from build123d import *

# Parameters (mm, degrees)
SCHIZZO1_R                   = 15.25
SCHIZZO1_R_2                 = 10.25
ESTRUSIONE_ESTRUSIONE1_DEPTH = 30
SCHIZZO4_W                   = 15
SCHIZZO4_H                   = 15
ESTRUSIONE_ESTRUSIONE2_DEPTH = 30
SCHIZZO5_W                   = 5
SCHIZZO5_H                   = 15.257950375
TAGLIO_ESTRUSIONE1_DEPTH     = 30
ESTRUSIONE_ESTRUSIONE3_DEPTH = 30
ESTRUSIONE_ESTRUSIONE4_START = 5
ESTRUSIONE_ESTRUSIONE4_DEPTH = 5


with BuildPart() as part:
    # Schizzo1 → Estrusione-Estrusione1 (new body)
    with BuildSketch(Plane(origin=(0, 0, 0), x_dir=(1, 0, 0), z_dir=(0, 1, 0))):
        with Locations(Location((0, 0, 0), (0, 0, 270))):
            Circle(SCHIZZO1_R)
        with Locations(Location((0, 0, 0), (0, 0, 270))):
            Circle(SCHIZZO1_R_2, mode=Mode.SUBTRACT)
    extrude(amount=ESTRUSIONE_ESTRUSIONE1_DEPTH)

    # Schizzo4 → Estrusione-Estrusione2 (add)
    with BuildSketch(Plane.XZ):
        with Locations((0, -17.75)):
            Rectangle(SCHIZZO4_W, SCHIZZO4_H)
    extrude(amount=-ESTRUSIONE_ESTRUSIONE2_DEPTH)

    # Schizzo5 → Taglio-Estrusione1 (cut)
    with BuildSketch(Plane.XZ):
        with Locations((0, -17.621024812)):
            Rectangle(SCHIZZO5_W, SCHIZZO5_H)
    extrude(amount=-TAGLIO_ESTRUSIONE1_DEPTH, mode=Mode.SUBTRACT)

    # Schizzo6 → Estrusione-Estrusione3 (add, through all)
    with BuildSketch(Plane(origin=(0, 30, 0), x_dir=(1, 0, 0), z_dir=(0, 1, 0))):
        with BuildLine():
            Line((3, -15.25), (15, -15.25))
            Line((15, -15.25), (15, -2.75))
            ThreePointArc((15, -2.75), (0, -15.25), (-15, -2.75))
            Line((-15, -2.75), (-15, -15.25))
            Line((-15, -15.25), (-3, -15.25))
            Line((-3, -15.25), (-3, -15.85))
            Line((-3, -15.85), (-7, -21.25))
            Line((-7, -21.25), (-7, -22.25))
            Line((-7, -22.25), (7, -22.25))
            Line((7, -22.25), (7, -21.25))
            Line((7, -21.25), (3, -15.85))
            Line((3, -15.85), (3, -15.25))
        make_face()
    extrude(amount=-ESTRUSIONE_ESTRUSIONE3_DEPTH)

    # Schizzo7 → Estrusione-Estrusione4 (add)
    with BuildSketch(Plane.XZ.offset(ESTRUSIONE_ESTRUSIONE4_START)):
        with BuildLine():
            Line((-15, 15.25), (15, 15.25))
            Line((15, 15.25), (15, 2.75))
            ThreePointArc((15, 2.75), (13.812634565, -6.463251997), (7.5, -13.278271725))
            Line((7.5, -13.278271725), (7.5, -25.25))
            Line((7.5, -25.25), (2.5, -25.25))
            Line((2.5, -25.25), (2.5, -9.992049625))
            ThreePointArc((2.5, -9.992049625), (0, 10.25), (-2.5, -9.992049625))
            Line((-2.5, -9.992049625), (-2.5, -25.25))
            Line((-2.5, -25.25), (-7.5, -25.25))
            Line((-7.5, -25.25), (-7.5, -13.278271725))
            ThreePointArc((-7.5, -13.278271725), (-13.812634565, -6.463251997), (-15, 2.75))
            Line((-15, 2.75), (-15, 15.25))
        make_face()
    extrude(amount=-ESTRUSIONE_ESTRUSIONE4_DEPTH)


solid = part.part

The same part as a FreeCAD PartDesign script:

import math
import FreeCAD as App
import Part
import Sketcher
from FreeCAD import Vector
Q = App.Units.Quantity


def add_polygon(sketch, points):
    """Adds a closed chain of lines whose ends are joined by coincident constraints."""
    first, n = sketch.GeometryCount, len(points)
    for a, b in zip(points, points[1:] + points[:1]):
        sketch.addGeometry(Part.LineSegment(App.Vector(*a, 0), App.Vector(*b, 0)), False)
    for i in range(n):
        sketch.addConstraint(Sketcher.Constraint("Coincident", first + i, 2, first + (i + 1) % n, 1))

doc = App.newDocument("Part")
body = doc.addObject("PartDesign::Body", "Body")

# Sketch on XZ plane
sketch1 = body.newObject("Sketcher::SketchObject", "Sketch")
sketch1.AttachmentSupport = (doc.getObject("XZ_Plane"), [""])
sketch1.MapMode = "FlatFace"
sketch1.addGeometry(Part.Circle(Vector(0, 0, 0), Vector(0, 0, 1), 15.25), False)
sketch1.addGeometry(Part.Circle(Vector(0, 0, 0), Vector(0, 0, 1), 10.25), False)
sketch1.addConstraint(Sketcher.Constraint("Coincident", 0, 3, -1, 1))
sketch1.addConstraint(Sketcher.Constraint("Coincident", 1, 3, -1, 1))
sketch1.addConstraint(Sketcher.Constraint("Diameter", 0, Q("30.5 mm")))
sketch1.addConstraint(Sketcher.Constraint("Diameter", 1, Q("20.5 mm")))
pad1 = body.newObject("PartDesign::Pad", "Pad")
pad1.Profile = sketch1
pad1.Length = 30
pad1.Reversed = True

# Sketch on XZ plane
sketch2 = body.newObject("Sketcher::SketchObject", "Sketch001")
sketch2.AttachmentSupport = (doc.getObject("XZ_Plane"), [""])
sketch2.MapMode = "FlatFace"
add_polygon(sketch2, [(-7.5, -10.25), (-7.5, -25.25), (7.5, -25.25), (7.5, -10.25)])  # lines 0-3
sketch2.addConstraint(Sketcher.Constraint("Vertical", 0))
sketch2.addConstraint(Sketcher.Constraint("Horizontal", 1))
sketch2.addConstraint(Sketcher.Constraint("Vertical", 2))
sketch2.addConstraint(Sketcher.Constraint("Horizontal", 3))
sketch2.addConstraint(Sketcher.Constraint("Equal", 3, 0))
sketch2.addConstraint(Sketcher.Constraint("DistanceX", 1, 1, 1, 2, Q("15 mm")))
sketch2.addConstraint(Sketcher.Constraint("DistanceX", 0, 2, -1, 1, Q("7.5 mm")))
sketch2.addConstraint(Sketcher.Constraint("DistanceY", 0, 2, -1, 1, Q("25.25 mm")))
pad2 = body.newObject("PartDesign::Pad", "Pad001")
pad2.Profile = sketch2
pad2.Length = 30
pad2.Reversed = True

# Sketch on XZ plane
sketch3 = body.newObject("Sketcher::SketchObject", "Sketch002")
sketch3.AttachmentSupport = (doc.getObject("XZ_Plane"), [""])
sketch3.MapMode = "FlatFace"
add_polygon(sketch3, [(-2.5, -9.99205), (-2.5, -25.25), (2.5, -25.25), (2.5, -9.99205)])  # lines 0-3
sketch3.addConstraint(Sketcher.Constraint("Vertical", 0))
sketch3.addConstraint(Sketcher.Constraint("Horizontal", 1))
sketch3.addConstraint(Sketcher.Constraint("Vertical", 2))
sketch3.addConstraint(Sketcher.Constraint("Horizontal", 3))
sketch3.addConstraint(Sketcher.Constraint("DistanceX", 1, 1, 1, 2, Q("5 mm")))
sketch3.addConstraint(Sketcher.Constraint("DistanceX", 0, 2, -1, 1, Q("2.5 mm")))
sketch3.addConstraint(Sketcher.Constraint("DistanceY", 0, 2, -1, 1, Q("25.25 mm")))
sketch3.addConstraint(Sketcher.Constraint("DistanceY", 0, 2, 0, 1, Q("15.25795 mm")))
pocket1 = body.newObject("PartDesign::Pocket", "Pocket")
pocket1.Profile = sketch3
pocket1.Length = 30

# Sketch on XZ plane
sketch4 = body.newObject("Sketcher::SketchObject", "Sketch003")
sketch4.AttachmentSupport = (doc.getObject("XZ_Plane"), [""])
sketch4.MapMode = "FlatFace"
sketch4.AttachmentOffset = App.Placement(Vector(0, 0, -30), App.Rotation())
sketch4.addGeometry(Part.LineSegment(Vector(3, 15.25, 0), Vector(15, 15.25, 0)), False)
sketch4.addGeometry(Part.LineSegment(Vector(15, 15.25, 0), Vector(15, 2.75, 0)), False)
sketch4.addGeometry(Part.ArcOfCircle(Part.Circle(Vector(0, 0, 0), Vector(0, 0, 1), 15.25), math.radians(10.388858), math.radians(169.611142)), False)
sketch4.addGeometry(Part.LineSegment(Vector(-15, 2.75, 0), Vector(-15, 15.25, 0)), False)
sketch4.addGeometry(Part.LineSegment(Vector(-15, 15.25, 0), Vector(-3, 15.25, 0)), False)
sketch4.addGeometry(Part.LineSegment(Vector(-3, 15.25, 0), Vector(-3, 15.85, 0)), False)
sketch4.addGeometry(Part.LineSegment(Vector(-3, 15.85, 0), Vector(-7, 21.25, 0)), False)
sketch4.addGeometry(Part.LineSegment(Vector(-7, 21.25, 0), Vector(-7, 22.25, 0)), False)
sketch4.addGeometry(Part.LineSegment(Vector(-7, 22.25, 0), Vector(7, 22.25, 0)), False)
sketch4.addGeometry(Part.LineSegment(Vector(7, 22.25, 0), Vector(7, 21.25, 0)), False)
sketch4.addGeometry(Part.LineSegment(Vector(7, 21.25, 0), Vector(3, 15.85, 0)), False)
sketch4.addGeometry(Part.LineSegment(Vector(3, 15.85, 0), Vector(3, 15.25, 0)), False)
sketch4.addConstraint(Sketcher.Constraint("Coincident", 0, 2, 1, 1))
sketch4.addConstraint(Sketcher.Constraint("Coincident", 1, 2, 2, 1))
sketch4.addConstraint(Sketcher.Constraint("Coincident", 2, 2, 3, 1))
sketch4.addConstraint(Sketcher.Constraint("Coincident", 3, 2, 4, 1))
sketch4.addConstraint(Sketcher.Constraint("Coincident", 4, 2, 5, 1))
sketch4.addConstraint(Sketcher.Constraint("Coincident", 5, 2, 6, 1))
sketch4.addConstraint(Sketcher.Constraint("Coincident", 6, 2, 7, 1))
sketch4.addConstraint(Sketcher.Constraint("Coincident", 7, 2, 8, 1))
sketch4.addConstraint(Sketcher.Constraint("Coincident", 8, 2, 9, 1))
sketch4.addConstraint(Sketcher.Constraint("Coincident", 9, 2, 10, 1))
sketch4.addConstraint(Sketcher.Constraint("Coincident", 10, 2, 11, 1))
sketch4.addConstraint(Sketcher.Constraint("Coincident", 11, 2, 0, 1))
sketch4.addConstraint(Sketcher.Constraint("Horizontal", 0))
sketch4.addConstraint(Sketcher.Constraint("Vertical", 1))
sketch4.addConstraint(Sketcher.Constraint("Vertical", 3))
sketch4.addConstraint(Sketcher.Constraint("Horizontal", 4))
sketch4.addConstraint(Sketcher.Constraint("Vertical", 5))
sketch4.addConstraint(Sketcher.Constraint("Vertical", 7))
sketch4.addConstraint(Sketcher.Constraint("Horizontal", 8))
sketch4.addConstraint(Sketcher.Constraint("Vertical", 9))
sketch4.addConstraint(Sketcher.Constraint("Vertical", 11))
sketch4.addConstraint(Sketcher.Constraint("Coincident", 2, 3, -1, 1))
sketch4.addConstraint(Sketcher.Constraint("Symmetric", 0, 2, 3, 2, -2))
sketch4.addConstraint(Sketcher.Constraint("Symmetric", 6, 2, 9, 2, -2))
sketch4.addConstraint(Sketcher.Constraint("Symmetric", 5, 2, 10, 2, -2))
sketch4.addConstraint(Sketcher.Constraint("DistanceX", 0, 1, 0, 2, Q("12 mm")))
sketch4.addConstraint(Sketcher.Constraint("DistanceX", 8, 1, 8, 2, Q("14 mm")))
sketch4.addConstraint(Sketcher.Constraint("DistanceY", 7, 1, 7, 2, Q("1 mm")))
sketch4.addConstraint(Sketcher.Constraint("Radius", 2, Q("15.25 mm")))
sketch4.addConstraint(Sketcher.Constraint("DistanceY", 1, 2, 1, 1, Q("12.5 mm")))
sketch4.addConstraint(Sketcher.Constraint("DistanceY", 5, 1, 5, 2, Q("0.6 mm")))
sketch4.addConstraint(Sketcher.Constraint("DistanceX", -1, 1, 0, 2, Q("15 mm")))
sketch4.addConstraint(Sketcher.Constraint("DistanceY", 4, 2, 6, 2, Q("6 mm")))
pad3 = body.newObject("PartDesign::Pad", "Pad002")
pad3.Profile = sketch4
pad3.Type = "UpToLast"

# Sketch on XZ plane
sketch5 = body.newObject("Sketcher::SketchObject", "Sketch004")
sketch5.AttachmentSupport = (doc.getObject("XZ_Plane"), [""])
sketch5.MapMode = "FlatFace"
sketch5.AttachmentOffset = App.Placement(Vector(0, 0, 5), App.Rotation())
sketch5.addGeometry(Part.LineSegment(Vector(15, 15.25, 0), Vector(-15, 15.25, 0)), False)
sketch5.addGeometry(Part.LineSegment(Vector(-15, 15.25, 0), Vector(-15, 2.75, 0)), False)
sketch5.addGeometry(Part.ArcOfCircle(Part.Circle(Vector(0, 0, 0), Vector(0, 0, 1), 15.25), math.radians(169.611142), math.radians(240.540825)), False)
sketch5.addGeometry(Part.LineSegment(Vector(-7.5, -13.278272, 0), Vector(-7.5, -25.25, 0)), False)
sketch5.addGeometry(Part.LineSegment(Vector(-7.5, -25.25, 0), Vector(-2.5, -25.25, 0)), False)
sketch5.addGeometry(Part.LineSegment(Vector(-2.5, -25.25, 0), Vector(-2.5, -9.99205, 0)), False)
sketch5.addGeometry(Part.ArcOfCircle(Part.Circle(Vector(0, -0.025406, 0), Vector(0, 0, 1), 10.275406), math.radians(-75.918645), math.radians(255.918645)), False)
sketch5.addGeometry(Part.LineSegment(Vector(2.5, -9.99205, 0), Vector(2.5, -25.25, 0)), False)
sketch5.addGeometry(Part.LineSegment(Vector(2.5, -25.25, 0), Vector(7.5, -25.25, 0)), False)
sketch5.addGeometry(Part.LineSegment(Vector(7.5, -25.25, 0), Vector(7.5, -13.278272, 0)), False)
sketch5.addGeometry(Part.ArcOfCircle(Part.Circle(Vector(0, 0, 0), Vector(0, 0, 1), 15.25), math.radians(-60.540825), math.radians(10.388858)), False)
sketch5.addGeometry(Part.LineSegment(Vector(15, 2.75, 0), Vector(15, 15.25, 0)), False)
sketch5.addConstraint(Sketcher.Constraint("Coincident", 0, 2, 1, 1))
sketch5.addConstraint(Sketcher.Constraint("Coincident", 1, 2, 2, 1))
sketch5.addConstraint(Sketcher.Constraint("Coincident", 2, 2, 3, 1))
sketch5.addConstraint(Sketcher.Constraint("Coincident", 3, 2, 4, 1))
sketch5.addConstraint(Sketcher.Constraint("Coincident", 4, 2, 5, 1))
sketch5.addConstraint(Sketcher.Constraint("Coincident", 5, 2, 6, 2))
sketch5.addConstraint(Sketcher.Constraint("Coincident", 6, 1, 7, 1))
sketch5.addConstraint(Sketcher.Constraint("Coincident", 7, 2, 8, 1))
sketch5.addConstraint(Sketcher.Constraint("Coincident", 8, 2, 9, 1))
sketch5.addConstraint(Sketcher.Constraint("Coincident", 9, 2, 10, 1))
sketch5.addConstraint(Sketcher.Constraint("Coincident", 10, 2, 11, 1))
sketch5.addConstraint(Sketcher.Constraint("Coincident", 11, 2, 0, 1))
sketch5.addConstraint(Sketcher.Constraint("Horizontal", 0))
sketch5.addConstraint(Sketcher.Constraint("Vertical", 1))
sketch5.addConstraint(Sketcher.Constraint("Vertical", 3))
sketch5.addConstraint(Sketcher.Constraint("Horizontal", 4))
sketch5.addConstraint(Sketcher.Constraint("Vertical", 5))
sketch5.addConstraint(Sketcher.Constraint("Vertical", 7))
sketch5.addConstraint(Sketcher.Constraint("Horizontal", 8))
sketch5.addConstraint(Sketcher.Constraint("Vertical", 9))
sketch5.addConstraint(Sketcher.Constraint("Vertical", 11))
sketch5.addConstraint(Sketcher.Constraint("Coincident", 2, 3, -1, 1))
sketch5.addConstraint(Sketcher.Constraint("Coincident", 10, 3, -1, 1))
sketch5.addConstraint(Sketcher.Constraint("Equal", 2, 10))
sketch5.addConstraint(Sketcher.Constraint("Symmetric", 5, 2, 6, 1, -2))
sketch5.addConstraint(Sketcher.Constraint("Symmetric", 3, 2, 8, 2, -2))
sketch5.addConstraint(Sketcher.Constraint("Horizontal", 1, 2, 10, 2))
sketch5.addConstraint(Sketcher.Constraint("DistanceX", 0, 2, 0, 1, Q("30 mm")))
sketch5.addConstraint(Sketcher.Constraint("DistanceX", 4, 1, 4, 2, Q("5 mm")))
sketch5.addConstraint(Sketcher.Constraint("Radius", 2, Q("15.25 mm")))
sketch5.addConstraint(Sketcher.Constraint("DistanceY", 1, 2, 1, 1, Q("12.5 mm")))
sketch5.addConstraint(Sketcher.Constraint("DistanceY", 3, 2, 1, 2, Q("28 mm")))
sketch5.addConstraint(Sketcher.Constraint("DistanceX", 5, 2, 6, 1, Q("5 mm")))
sketch5.addConstraint(Sketcher.Constraint("Radius", 6, Q("10.275406 mm")))
sketch5.addConstraint(Sketcher.Constraint("DistanceY", 5, 1, 5, 2, Q("15.25795 mm")))
pad4 = body.newObject("PartDesign::Pad", "Pad003")
pad4.Profile = sketch5
pad4.Length = 5
pad4.Reversed = True

doc.recompute()
